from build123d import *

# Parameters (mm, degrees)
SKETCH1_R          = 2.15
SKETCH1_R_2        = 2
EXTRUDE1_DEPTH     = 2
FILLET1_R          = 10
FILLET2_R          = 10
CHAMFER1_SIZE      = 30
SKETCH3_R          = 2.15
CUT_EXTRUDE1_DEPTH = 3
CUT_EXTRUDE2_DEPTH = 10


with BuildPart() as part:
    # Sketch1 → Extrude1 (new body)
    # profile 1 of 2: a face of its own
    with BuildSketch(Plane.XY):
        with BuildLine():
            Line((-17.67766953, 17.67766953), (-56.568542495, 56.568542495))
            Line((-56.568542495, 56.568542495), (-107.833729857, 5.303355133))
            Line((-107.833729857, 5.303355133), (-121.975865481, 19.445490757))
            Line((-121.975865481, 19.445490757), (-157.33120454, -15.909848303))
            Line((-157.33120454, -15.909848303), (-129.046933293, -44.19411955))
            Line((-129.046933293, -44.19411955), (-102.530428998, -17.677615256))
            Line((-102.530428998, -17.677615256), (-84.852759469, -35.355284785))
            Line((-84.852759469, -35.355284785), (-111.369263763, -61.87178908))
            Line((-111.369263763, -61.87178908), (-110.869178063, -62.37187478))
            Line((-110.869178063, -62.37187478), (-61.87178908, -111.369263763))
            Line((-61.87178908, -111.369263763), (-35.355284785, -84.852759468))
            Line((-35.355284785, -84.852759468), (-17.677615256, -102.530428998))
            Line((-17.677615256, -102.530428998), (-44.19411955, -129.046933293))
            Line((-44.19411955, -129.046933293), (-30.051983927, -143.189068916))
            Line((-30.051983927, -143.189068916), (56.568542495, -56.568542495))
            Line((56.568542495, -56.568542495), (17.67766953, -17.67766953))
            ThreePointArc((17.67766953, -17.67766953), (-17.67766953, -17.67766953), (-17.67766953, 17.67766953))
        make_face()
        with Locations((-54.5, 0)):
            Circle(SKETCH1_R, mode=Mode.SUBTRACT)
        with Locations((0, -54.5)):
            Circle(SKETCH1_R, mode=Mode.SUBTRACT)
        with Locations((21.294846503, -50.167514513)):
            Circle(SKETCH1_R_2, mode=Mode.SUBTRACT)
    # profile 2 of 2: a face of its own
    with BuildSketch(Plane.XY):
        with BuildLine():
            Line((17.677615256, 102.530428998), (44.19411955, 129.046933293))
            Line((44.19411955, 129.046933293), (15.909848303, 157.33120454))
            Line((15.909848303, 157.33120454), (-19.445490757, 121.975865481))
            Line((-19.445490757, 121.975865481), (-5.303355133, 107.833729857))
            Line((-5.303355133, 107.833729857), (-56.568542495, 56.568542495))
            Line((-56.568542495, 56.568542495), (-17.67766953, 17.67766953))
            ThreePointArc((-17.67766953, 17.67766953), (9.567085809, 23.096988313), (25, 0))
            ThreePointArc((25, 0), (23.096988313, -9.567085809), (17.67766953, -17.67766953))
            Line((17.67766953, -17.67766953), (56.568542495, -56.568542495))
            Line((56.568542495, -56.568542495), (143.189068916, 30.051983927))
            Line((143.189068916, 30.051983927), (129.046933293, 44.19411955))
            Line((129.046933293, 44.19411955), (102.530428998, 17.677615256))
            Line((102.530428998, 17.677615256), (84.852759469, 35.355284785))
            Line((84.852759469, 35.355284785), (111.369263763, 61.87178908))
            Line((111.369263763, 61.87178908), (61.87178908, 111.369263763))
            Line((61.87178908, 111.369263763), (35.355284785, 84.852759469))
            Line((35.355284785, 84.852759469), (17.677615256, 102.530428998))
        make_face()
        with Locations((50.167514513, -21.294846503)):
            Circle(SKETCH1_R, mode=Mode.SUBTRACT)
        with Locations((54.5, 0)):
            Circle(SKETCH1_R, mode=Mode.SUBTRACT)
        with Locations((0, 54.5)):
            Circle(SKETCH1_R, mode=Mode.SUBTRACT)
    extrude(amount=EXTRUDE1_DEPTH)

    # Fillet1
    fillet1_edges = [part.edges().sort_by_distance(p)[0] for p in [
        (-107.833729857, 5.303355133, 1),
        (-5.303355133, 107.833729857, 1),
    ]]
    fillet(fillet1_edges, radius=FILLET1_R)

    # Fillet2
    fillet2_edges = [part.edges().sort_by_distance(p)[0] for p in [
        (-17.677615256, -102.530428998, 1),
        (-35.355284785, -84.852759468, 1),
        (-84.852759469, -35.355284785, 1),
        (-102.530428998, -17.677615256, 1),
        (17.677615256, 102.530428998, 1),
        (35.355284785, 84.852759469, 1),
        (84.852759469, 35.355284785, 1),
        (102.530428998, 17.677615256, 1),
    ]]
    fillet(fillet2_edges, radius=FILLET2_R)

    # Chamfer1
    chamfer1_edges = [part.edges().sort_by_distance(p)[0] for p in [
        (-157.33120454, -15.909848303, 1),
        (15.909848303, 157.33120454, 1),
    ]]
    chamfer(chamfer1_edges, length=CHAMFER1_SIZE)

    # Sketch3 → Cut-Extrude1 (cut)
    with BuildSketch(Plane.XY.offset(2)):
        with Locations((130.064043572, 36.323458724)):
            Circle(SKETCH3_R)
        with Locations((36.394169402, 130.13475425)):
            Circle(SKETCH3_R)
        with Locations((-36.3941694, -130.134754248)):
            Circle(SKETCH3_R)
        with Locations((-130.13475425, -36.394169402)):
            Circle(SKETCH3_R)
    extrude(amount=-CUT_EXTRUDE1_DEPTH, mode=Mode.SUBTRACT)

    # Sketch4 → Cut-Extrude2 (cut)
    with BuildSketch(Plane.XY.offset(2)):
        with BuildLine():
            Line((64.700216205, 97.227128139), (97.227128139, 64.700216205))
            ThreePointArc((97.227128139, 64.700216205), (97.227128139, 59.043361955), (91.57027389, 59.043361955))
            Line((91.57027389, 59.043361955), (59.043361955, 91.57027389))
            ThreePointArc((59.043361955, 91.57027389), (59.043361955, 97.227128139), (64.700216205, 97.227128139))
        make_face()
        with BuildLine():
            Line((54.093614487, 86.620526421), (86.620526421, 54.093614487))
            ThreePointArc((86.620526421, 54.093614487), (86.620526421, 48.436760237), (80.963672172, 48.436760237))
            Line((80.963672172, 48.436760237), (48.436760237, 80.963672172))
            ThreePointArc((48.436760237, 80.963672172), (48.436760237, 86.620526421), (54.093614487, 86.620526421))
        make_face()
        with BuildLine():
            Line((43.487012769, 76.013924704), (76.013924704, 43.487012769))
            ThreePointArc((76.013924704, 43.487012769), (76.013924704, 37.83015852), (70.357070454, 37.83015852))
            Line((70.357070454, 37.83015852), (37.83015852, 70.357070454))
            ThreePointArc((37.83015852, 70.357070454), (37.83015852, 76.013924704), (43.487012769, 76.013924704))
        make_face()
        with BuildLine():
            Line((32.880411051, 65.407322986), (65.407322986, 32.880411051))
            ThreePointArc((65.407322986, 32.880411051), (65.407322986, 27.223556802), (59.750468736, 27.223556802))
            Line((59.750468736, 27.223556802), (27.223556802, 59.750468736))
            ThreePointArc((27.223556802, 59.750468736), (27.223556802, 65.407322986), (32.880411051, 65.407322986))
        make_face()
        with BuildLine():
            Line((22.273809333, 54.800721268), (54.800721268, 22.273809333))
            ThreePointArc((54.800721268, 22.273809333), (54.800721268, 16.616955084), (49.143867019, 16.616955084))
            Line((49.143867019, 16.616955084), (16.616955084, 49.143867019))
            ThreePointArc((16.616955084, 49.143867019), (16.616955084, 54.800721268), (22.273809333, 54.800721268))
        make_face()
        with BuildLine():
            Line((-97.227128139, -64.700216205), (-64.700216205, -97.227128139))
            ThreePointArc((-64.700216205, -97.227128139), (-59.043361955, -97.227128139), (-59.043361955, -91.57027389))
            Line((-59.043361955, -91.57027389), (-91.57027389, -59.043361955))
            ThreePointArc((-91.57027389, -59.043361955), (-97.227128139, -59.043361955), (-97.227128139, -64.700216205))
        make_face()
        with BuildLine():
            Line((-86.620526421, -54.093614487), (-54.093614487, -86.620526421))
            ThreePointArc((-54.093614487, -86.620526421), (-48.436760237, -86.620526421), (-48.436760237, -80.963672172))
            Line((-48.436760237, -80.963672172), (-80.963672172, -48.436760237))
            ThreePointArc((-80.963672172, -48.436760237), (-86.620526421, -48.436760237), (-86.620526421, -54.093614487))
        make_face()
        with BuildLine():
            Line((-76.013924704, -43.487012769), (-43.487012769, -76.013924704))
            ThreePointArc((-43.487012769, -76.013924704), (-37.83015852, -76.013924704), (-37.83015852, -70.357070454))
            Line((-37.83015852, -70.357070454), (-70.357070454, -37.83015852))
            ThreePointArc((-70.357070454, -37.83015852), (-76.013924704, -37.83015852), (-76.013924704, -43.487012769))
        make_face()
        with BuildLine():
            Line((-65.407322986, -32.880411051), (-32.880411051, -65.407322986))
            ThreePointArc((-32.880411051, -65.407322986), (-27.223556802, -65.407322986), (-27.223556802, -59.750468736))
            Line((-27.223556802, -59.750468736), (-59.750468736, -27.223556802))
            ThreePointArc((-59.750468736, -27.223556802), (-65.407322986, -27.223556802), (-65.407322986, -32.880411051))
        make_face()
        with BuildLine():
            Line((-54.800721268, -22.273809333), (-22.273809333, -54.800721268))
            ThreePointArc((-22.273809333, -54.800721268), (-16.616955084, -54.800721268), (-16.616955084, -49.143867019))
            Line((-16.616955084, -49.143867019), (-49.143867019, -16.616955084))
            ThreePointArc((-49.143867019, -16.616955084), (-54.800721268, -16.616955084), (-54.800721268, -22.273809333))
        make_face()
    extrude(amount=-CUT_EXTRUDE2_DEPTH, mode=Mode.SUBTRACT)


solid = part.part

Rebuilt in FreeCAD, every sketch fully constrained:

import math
import FreeCAD as App
import Part
import Sketcher

V = App.Vector
Q = App.Units.Quantity


def edges_at(feature, points):
    """Names of the edges that pass closest to the given points."""
    edges = feature.Shape.Edges
    near = lambda p: min(range(len(edges)), key=lambda i: edges[i].distToShape(Part.Vertex(*p))[0])
    return sorted({f"Edge{near(p) + 1}" for p in points})


def add_polygon(sketch, points):
    """Adds a closed chain of lines whose ends are joined by coincident constraints."""
    first, n = sketch.GeometryCount, len(points)
    for a, b in zip(points, points[1:] + points[:1]):
        sketch.addGeometry(Part.LineSegment(App.Vector(*a, 0), App.Vector(*b, 0)), False)
    for i in range(n):
        sketch.addConstraint(Sketcher.Constraint("Coincident", first + i, 2, first + (i + 1) % n, 1))

doc = App.newDocument("Part")
body = doc.addObject("PartDesign::Body", "Body")

# Sketch on XY plane
sketch1 = body.newObject("Sketcher::SketchObject", "Sketch")
sketch1.AttachmentSupport = (doc.getObject("XY_Plane"), [""])
sketch1.MapMode = "FlatFace"
add_polygon(sketch1, [(-107.83373, 5.303355), (-121.975865, 19.445491), (-157.331205, -15.909848), (-129.046933, -44.19412), (-102.530429, -17.677615), (-84.852759, -35.355285), (-111.369264, -61.871789), (-61.871789, -111.369264), (-35.355285, -84.852759), (-17.677615, -102.530429), (-44.19412, -129.046933), (-30.051984, -143.189069), (56.568542, -56.568542), (143.189069, 30.051984), (129.046933, 44.19412), (102.530429, 17.677615), (84.852759, 35.355285), (111.369264, 61.871789), (61.871789, 111.369264), (35.355285, 84.852759), (17.677615, 102.530429), (44.19412, 129.046933), (15.909848, 157.331205), (-19.445491, 121.975865), (-5.303355, 107.83373)])  # lines 0-24
sketch1.addGeometry(Part.ArcOfCircle(Part.Circle(V(0, 0, 0), V(0, 0, 1), 25), math.radians(135), math.radians(315)), False)  # 25
sketch1.addGeometry(Part.ArcOfCircle(Part.Circle(V(0, 0, 0), V(0, 0, 1), 25), math.radians(0), math.radians(135)), False)  # 26
sketch1.addGeometry(Part.ArcOfCircle(Part.Circle(V(0, 0, 0), V(0, 0, 1), 25), math.radians(-45), math.radians(0)), False)  # 27
sketch1.addGeometry(Part.Circle(V(0, -54.5, 0), V(0, 0, 1), 2.15), False)  # 28
sketch1.addGeometry(Part.Circle(V(21.294847, -50.167515, 0), V(0, 0, 1), 2), False)  # 29
sketch1.addGeometry(Part.Circle(V(-54.5, 0, 0), V(0, 0, 1), 2.15), False)  # 30
sketch1.addGeometry(Part.Circle(V(0, 54.5, 0), V(0, 0, 1), 2.15), False)  # 31
sketch1.addGeometry(Part.Circle(V(54.5, 0, 0), V(0, 0, 1), 2.15), False)  # 32
sketch1.addGeometry(Part.Circle(V(50.167515, -21.294847, 0), V(0, 0, 1), 2.15), False)  # 33
sketch1.addConstraint(Sketcher.Constraint("Tangent", 25, 1, 26, 2))
sketch1.addConstraint(Sketcher.Constraint("Tangent", 26, 1, 27, 2))
sketch1.addConstraint(Sketcher.Constraint("Tangent", 27, 1, 25, 2))
sketch1.addConstraint(Sketcher.Constraint("Coincident", 25, 3, -1, 1))
sketch1.addConstraint(Sketcher.Constraint("Equal", 28, 30))
sketch1.addConstraint(Sketcher.Constraint("Equal", 30, 31))
sketch1.addConstraint(Sketcher.Constraint("Equal", 31, 32))
sketch1.addConstraint(Sketcher.Constraint("Equal", 32, 33))
sketch1.addConstraint(Sketcher.Constraint("Symmetric", 28, 3, 31, 3, -1, 1))
sketch1.addConstraint(Sketcher.Constraint("Symmetric", 30, 3, 32, 3, -1, 1))
sketch1.addConstraint(Sketcher.Constraint("Symmetric", 2, 2, 13, 2, -1, 1))
sketch1.addConstraint(Sketcher.Constraint("Symmetric", 3, 2, 14, 2, -1, 1))
sketch1.addConstraint(Sketcher.Constraint("Symmetric", 4, 2, 15, 2, -1, 1))
sketch1.addConstraint(Sketcher.Constraint("Symmetric", 5, 2, 16, 2, -1, 1))
sketch1.addConstraint(Sketcher.Constraint("Symmetric", 6, 2, 17, 2, -1, 1))
sketch1.addConstraint(Sketcher.Constraint("Symmetric", 7, 2, 18, 2, -1, 1))
sketch1.addConstraint(Sketcher.Constraint("Symmetric", 8, 2, 19, 2, -1, 1))
sketch1.addConstraint(Sketcher.Constraint("Symmetric", 9, 2, 20, 2, -1, 1))
sketch1.addConstraint(Sketcher.Constraint("PointOnObject", 28, 3, -2))
sketch1.addConstraint(Sketcher.Constraint("PointOnObject", 30, 3, -1))
sketch1.addConstraint(Sketcher.Constraint("PointOnObject", 26, 1, -1))
sketch1.addConstraint(Sketcher.Constraint("Perpendicular", 0, 1))
sketch1.addConstraint(Sketcher.Constraint("Perpendicular", 1, 2))
sketch1.addConstraint(Sketcher.Constraint("Perpendicular", 2, 3))
sketch1.addConstraint(Sketcher.Constraint("Perpendicular", 3, 4))
sketch1.addConstraint(Sketcher.Constraint("Perpendicular", 4, 5))
sketch1.addConstraint(Sketcher.Constraint("Perpendicular", 5, 6))
sketch1.addConstraint(Sketcher.Constraint("Perpendicular", 6, 7))
sketch1.addConstraint(Sketcher.Constraint("Perpendicular", 7, 8))
sketch1.addConstraint(Sketcher.Constraint("Perpendicular", 8, 9))
sketch1.addConstraint(Sketcher.Constraint("Perpendicular", 9, 10))
sketch1.addConstraint(Sketcher.Constraint("Perpendicular", 10, 11))
sketch1.addConstraint(Sketcher.Constraint("Parallel", 11, 12))
sketch1.addConstraint(Sketcher.Constraint("Perpendicular", 12, 13))
sketch1.addConstraint(Sketcher.Constraint("Perpendicular", 20, 21))
sketch1.addConstraint(Sketcher.Constraint("Perpendicular", 21, 22))
sketch1.addConstraint(Sketcher.Constraint("Perpendicular", 22, 23))
sketch1.addConstraint(Sketcher.Constraint("Perpendicular", 23, 24))
sketch1.addConstraint(Sketcher.Constraint("Equal", 3, 5))
sketch1.addConstraint(Sketcher.Constraint("Equal", 5, 7))
sketch1.addConstraint(Sketcher.Constraint("Equal", 4, 8))
sketch1.addConstraint(Sketcher.Constraint("Equal", 7, 9))
sketch1.addConstraint(Sketcher.Constraint("Equal", 0, 10))
sketch1.addConstraint(Sketcher.Constraint("Equal", 11, 12))
sketch1.addConstraint(Sketcher.Constraint("Equal", 10, 13))
sketch1.addConstraint(Sketcher.Constraint("Equal", 2, 21))
sketch1.addConstraint(Sketcher.Constraint("Equal", 1, 22))
sketch1.addConstraint(Sketcher.Constraint("Diameter", 29, 4.0))
sketch1.addConstraint(Sketcher.Constraint("Radius", 25, 25.0))
sketch1.addConstraint(Sketcher.Constraint("Diameter", 28, 4.3))
sketch1.addConstraint(Sketcher.Constraint("Angle", 0, Q("135 deg")))
sketch1.addConstraint(Sketcher.Constraint("Distance", 0, 20.0))
sketch1.addConstraint(Sketcher.Constraint("Distance", 1, 50.0))
sketch1.addConstraint(Sketcher.Constraint("Distance", 2, 40.0))
sketch1.addConstraint(Sketcher.Constraint("Distance", 4, 25.0))
sketch1.addConstraint(Sketcher.Constraint("Distance", 6, 70.0))
sketch1.addConstraint(Sketcher.Constraint("Distance", 3, 37.5))
sketch1.addConstraint(Sketcher.Constraint("DistanceY", 28, 3, -1, 1, 54.5))
sketch1.addConstraint(Sketcher.Constraint("DistanceX", 30, 3, -1, 1, 54.5))
sketch1.addConstraint(Sketcher.Constraint("DistanceY", 29, 3, 12, 2, 80.219498))
sketch1.addConstraint(Sketcher.Constraint("DistanceY", -1, 1, 0, 2, 19.445491))
sketch1.addConstraint(Sketcher.Constraint("DistanceX", 25, 1, -1, 1, 17.67767))
sketch1.addConstraint(Sketcher.Constraint("DistanceX", -1, 1, 27, 1, 17.67767))
sketch1.addConstraint(Sketcher.Constraint("DistanceX", 29, 3, 33, 3, 28.872668))
sketch1.addConstraint(Sketcher.Constraint("DistanceY", 29, 3, 33, 3, 28.872668))
sketch1.addConstraint(Sketcher.Constraint("DistanceX", 7, 2, 29, 3, 56.650131))
pad1 = body.newObject("PartDesign::Pad", "Pad")
pad1.Profile = sketch1
pad1.Length = 2
doc.recompute()

fillet = body.newObject("PartDesign::Fillet", "Fillet")
fillet.Base = (pad1, edges_at(pad1, [(-107.834, 5.303, 1), (-5.303, 107.834, 1)]))
fillet.Radius = 10
doc.recompute()

fillet2 = body.newObject("PartDesign::Fillet", "Fillet001")
fillet2.Base = (fillet, edges_at(fillet, [
    (-17.678, -102.53, 1),
    (-35.355, -84.853, 1),
    (-84.853, -35.355, 1),
    (-102.53, -17.678, 1),
    (17.678, 102.53, 1),
    (35.355, 84.853, 1),
    (84.853, 35.355, 1),
    (102.53, 17.678, 1),
]))
fillet2.Radius = 10
doc.recompute()

chamfer = body.newObject("PartDesign::Chamfer", "Chamfer")
chamfer.Base = (fillet2, edges_at(fillet2, [(-157.331, -15.91, 1), (15.91, 157.331, 1)]))
chamfer.Size = 30

# Sketch on XY plane
sketch2 = body.newObject("Sketcher::SketchObject", "Sketch001")
sketch2.AttachmentSupport = (doc.getObject("XY_Plane"), [""])
sketch2.MapMode = "FlatFace"
sketch2.AttachmentOffset = App.Placement(V(0, 0, 2), App.Rotation())
sketch2.addGeometry(Part.Circle(V(130.064044, 36.323459, 0), V(0, 0, 1), 2.15), False)
sketch2.addGeometry(Part.Circle(V(36.394169, 130.134754, 0), V(0, 0, 1), 2.15), False)
sketch2.addGeometry(Part.Circle(V(-36.394169, -130.134754, 0), V(0, 0, 1), 2.15), False)
sketch2.addGeometry(Part.Circle(V(-130.134754, -36.394169, 0), V(0, 0, 1), 2.15), False)
sketch2.addConstraint(Sketcher.Constraint("Equal", 0, 1))
sketch2.addConstraint(Sketcher.Constraint("Equal", 1, 2))
sketch2.addConstraint(Sketcher.Constraint("Equal", 2, 3))
sketch2.addConstraint(Sketcher.Constraint("Symmetric", 1, 3, 2, 3, -1, 1))
sketch2.addConstraint(Sketcher.Constraint("Diameter", 0, 4.3))
sketch2.addConstraint(Sketcher.Constraint("DistanceY", -1, 1, 0, 3, 36.323459))
sketch2.addConstraint(Sketcher.Constraint("DistanceX", -1, 1, 1, 3, 36.394169))
sketch2.addConstraint(Sketcher.Constraint("DistanceY", 3, 3, -1, 1, 36.394169))
sketch2.addConstraint(Sketcher.Constraint("DistanceY", 2, 3, 1, 3, 260.269508))
sketch2.addConstraint(Sketcher.Constraint("DistanceX", -1, 1, 0, 3, 130.064044))
sketch2.addConstraint(Sketcher.Constraint("DistanceX", 3, 3, -1, 1, 130.134754))
pocket1 = body.newObject("PartDesign::Pocket", "Pocket")
pocket1.Profile = sketch2
pocket1.Length = 3

# Sketch on XY plane
sketch3 = body.newObject("Sketcher::SketchObject", "Sketch002")
sketch3.AttachmentSupport = (doc.getObject("XY_Plane"), [""])
sketch3.MapMode = "FlatFace"
sketch3.AttachmentOffset = App.Placement(V(0, 0, 2), App.Rotation())
sketch3.addGeometry(Part.LineSegment(V(97.227128, 64.700216, 0), V(64.700216, 97.227128, 0)), False)
sketch3.addGeometry(Part.ArcOfCircle(Part.Circle(V(61.871789, 94.398701, 0), V(0, 0, 1), 4), math.radians(45), math.radians(225)), False)
sketch3.addGeometry(Part.LineSegment(V(59.043362, 91.570274, 0), V(91.570274, 59.043362, 0)), False)
sketch3.addGeometry(Part.ArcOfCircle(Part.Circle(V(94.398701, 61.871789, 0), V(0, 0, 1), 4), math.radians(-135), math.radians(45)), False)
sketch3.addGeometry(Part.LineSegment(V(86.620526, 54.093614, 0), V(54.093614, 86.620526, 0)), False)
sketch3.addGeometry(Part.ArcOfCircle(Part.Circle(V(51.265187, 83.792099, 0), V(0, 0, 1), 4), math.radians(45), math.radians(225)), False)
sketch3.addGeometry(Part.LineSegment(V(48.43676, 80.963672, 0), V(80.963672, 48.43676, 0)), False)
sketch3.addGeometry(Part.ArcOfCircle(Part.Circle(V(83.792099, 51.265187, 0), V(0, 0, 1), 4), math.radians(-135), math.radians(45)), False)
sketch3.addGeometry(Part.LineSegment(V(76.013925, 43.487013, 0), V(43.487013, 76.013925, 0)), False)
sketch3.addGeometry(Part.ArcOfCircle(Part.Circle(V(40.658586, 73.185498, 0), V(0, 0, 1), 4), math.radians(45), math.radians(225)), False)
sketch3.addGeometry(Part.LineSegment(V(37.830159, 70.35707, 0), V(70.35707, 37.830159, 0)), False)
sketch3.addGeometry(Part.ArcOfCircle(Part.Circle(V(73.185498, 40.658586, 0), V(0, 0, 1), 4), math.radians(-135), math.radians(45)), False)
sketch3.addGeometry(Part.LineSegment(V(65.407323, 32.880411, 0), V(32.880411, 65.407323, 0)), False)
sketch3.addGeometry(Part.ArcOfCircle(Part.Circle(V(30.051984, 62.578896, 0), V(0, 0, 1), 4), math.radians(45), math.radians(225)), False)
sketch3.addGeometry(Part.LineSegment(V(27.223557, 59.750469, 0), V(59.750469, 27.223557, 0)), False)
sketch3.addGeometry(Part.ArcOfCircle(Part.Circle(V(62.578896, 30.051984, 0), V(0, 0, 1), 4), math.radians(-135), math.radians(45)), False)
sketch3.addGeometry(Part.LineSegment(V(54.800721, 22.273809, 0), V(22.273809, 54.800721, 0)), False)
sketch3.addGeometry(Part.ArcOfCircle(Part.Circle(V(19.445382, 51.972294, 0), V(0, 0, 1), 4), math.radians(45), math.radians(225)), False)
sketch3.addGeometry(Part.LineSegment(V(16.616955, 49.143867, 0), V(49.143867, 16.616955, 0)), False)
sketch3.addGeometry(Part.ArcOfCircle(Part.Circle(V(51.972294, 19.445382, 0), V(0, 0, 1), 4), math.radians(-135), math.radians(45)), False)
sketch3.addGeometry(Part.LineSegment(V(-97.227128, -64.700216, 0), V(-64.700216, -97.227128, 0)), False)
sketch3.addGeometry(Part.ArcOfCircle(Part.Circle(V(-61.871789, -94.398701, 0), V(0, 0, 1), 4), math.radians(-135), math.radians(45)), False)
sketch3.addGeometry(Part.LineSegment(V(-59.043362, -91.570274, 0), V(-91.570274, -59.043362, 0)), False)
sketch3.addGeometry(Part.ArcOfCircle(Part.Circle(V(-94.398701, -61.871789, 0), V(0, 0, 1), 4), math.radians(45), math.radians(225)), False)
sketch3.addGeometry(Part.LineSegment(V(-86.620526, -54.093614, 0), V(-54.093614, -86.620526, 0)), False)
sketch3.addGeometry(Part.ArcOfCircle(Part.Circle(V(-51.265187, -83.792099, 0), V(0, 0, 1), 4), math.radians(-135), math.radians(45)), False)
sketch3.addGeometry(Part.LineSegment(V(-48.43676, -80.963672, 0), V(-80.963672, -48.43676, 0)), False)
sketch3.addGeometry(Part.ArcOfCircle(Part.Circle(V(-83.792099, -51.265187, 0), V(0, 0, 1), 4), math.radians(45), math.radians(225)), False)
sketch3.addGeometry(Part.LineSegment(V(-76.013925, -43.487013, 0), V(-43.487013, -76.013925, 0)), False)
sketch3.addGeometry(Part.ArcOfCircle(Part.Circle(V(-40.658586, -73.185498, 0), V(0, 0, 1), 4), math.radians(-135), math.radians(45)), False)
sketch3.addGeometry(Part.LineSegment(V(-37.830159, -70.35707, 0), V(-70.35707, -37.830159, 0)), False)
sketch3.addGeometry(Part.ArcOfCircle(Part.Circle(V(-73.185498, -40.658586, 0), V(0, 0, 1), 4), math.radians(45), math.radians(225)), False)
sketch3.addGeometry(Part.LineSegment(V(-65.407323, -32.880411, 0), V(-32.880411, -65.407323, 0)), False)
sketch3.addGeometry(Part.ArcOfCircle(Part.Circle(V(-30.051984, -62.578896, 0), V(0, 0, 1), 4), math.radians(-135), math.radians(45)), False)
sketch3.addGeometry(Part.LineSegment(V(-27.223557, -59.750469, 0), V(-59.750469, -27.223557, 0)), False)
sketch3.addGeometry(Part.ArcOfCircle(Part.Circle(V(-62.578896, -30.051984, 0), V(0, 0, 1), 4), math.radians(45), math.radians(225)), False)
sketch3.addGeometry(Part.LineSegment(V(-54.800721, -22.273809, 0), V(-22.273809, -54.800721, 0)), False)
sketch3.addGeometry(Part.ArcOfCircle(Part.Circle(V(-19.445382, -51.972294, 0), V(0, 0, 1), 4), math.radians(-135), math.radians(45)), False)
sketch3.addGeometry(Part.LineSegment(V(-16.616955, -49.143867, 0), V(-49.143867, -16.616955, 0)), False)
sketch3.addGeometry(Part.ArcOfCircle(Part.Circle(V(-51.972294, -19.445382, 0), V(0, 0, 1), 4), math.radians(45), math.radians(225)), False)
sketch3.addConstraint(Sketcher.Constraint("Tangent", 0, 2, 1, 1))
sketch3.addConstraint(Sketcher.Constraint("Tangent", 1, 2, 2, 1))
sketch3.addConstraint(Sketcher.Constraint("Tangent", 2, 2, 3, 1))
sketch3.addConstraint(Sketcher.Constraint("Tangent", 3, 2, 0, 1))
sketch3.addConstraint(Sketcher.Constraint("Tangent", 4, 2, 5, 1))
sketch3.addConstraint(Sketcher.Constraint("Tangent", 5, 2, 6, 1))
sketch3.addConstraint(Sketcher.Constraint("Tangent", 6, 2, 7, 1))
sketch3.addConstraint(Sketcher.Constraint("Tangent", 7, 2, 4, 1))
sketch3.addConstraint(Sketcher.Constraint("Tangent", 8, 2, 9, 1))
sketch3.addConstraint(Sketcher.Constraint("Tangent", 9, 2, 10, 1))
sketch3.addConstraint(Sketcher.Constraint("Tangent", 10, 2, 11, 1))
sketch3.addConstraint(Sketcher.Constraint("Tangent", 11, 2, 8, 1))
sketch3.addConstraint(Sketcher.Constraint("Tangent", 12, 2, 13, 1))
sketch3.addConstraint(Sketcher.Constraint("Tangent", 13, 2, 14, 1))
sketch3.addConstraint(Sketcher.Constraint("Tangent", 14, 2, 15, 1))
sketch3.addConstraint(Sketcher.Constraint("Tangent", 15, 2, 12, 1))
sketch3.addConstraint(Sketcher.Constraint("Tangent", 16, 2, 17, 1))
sketch3.addConstraint(Sketcher.Constraint("Tangent", 17, 2, 18, 1))
sketch3.addConstraint(Sketcher.Constraint("Tangent", 18, 2, 19, 1))
sketch3.addConstraint(Sketcher.Constraint("Tangent", 19, 2, 16, 1))
sketch3.addConstraint(Sketcher.Constraint("Tangent", 20, 2, 21, 1))
sketch3.addConstraint(Sketcher.Constraint("Tangent", 21, 2, 22, 1))
sketch3.addConstraint(Sketcher.Constraint("Tangent", 22, 2, 23, 1))
sketch3.addConstraint(Sketcher.Constraint("Tangent", 23, 2, 20, 1))
sketch3.addConstraint(Sketcher.Constraint("Tangent", 24, 2, 25, 1))
sketch3.addConstraint(Sketcher.Constraint("Tangent", 25, 2, 26, 1))
sketch3.addConstraint(Sketcher.Constraint("Tangent", 26, 2, 27, 1))
sketch3.addConstraint(Sketcher.Constraint("Tangent", 27, 2, 24, 1))
sketch3.addConstraint(Sketcher.Constraint("Tangent", 28, 2, 29, 1))
sketch3.addConstraint(Sketcher.Constraint("Tangent", 29, 2, 30, 1))
sketch3.addConstraint(Sketcher.Constraint("Tangent", 30, 2, 31, 1))
sketch3.addConstraint(Sketcher.Constraint("Tangent", 31, 2, 28, 1))
sketch3.addConstraint(Sketcher.Constraint("Tangent", 32, 2, 33, 1))
sketch3.addConstraint(Sketcher.Constraint("Tangent", 33, 2, 34, 1))
sketch3.addConstraint(Sketcher.Constraint("Tangent", 34, 2, 35, 1))
sketch3.addConstraint(Sketcher.Constraint("Tangent", 35, 2, 32, 1))
sketch3.addConstraint(Sketcher.Constraint("Tangent", 36, 2, 37, 1))
sketch3.addConstraint(Sketcher.Constraint("Tangent", 37, 2, 38, 1))
sketch3.addConstraint(Sketcher.Constraint("Tangent", 38, 2, 39, 1))
sketch3.addConstraint(Sketcher.Constraint("Tangent", 39, 2, 36, 1))
sketch3.addConstraint(Sketcher.Constraint("Equal", 1, 3))
sketch3.addConstraint(Sketcher.Constraint("Equal", 3, 5))
sketch3.addConstraint(Sketcher.Constraint("Equal", 5, 7))
sketch3.addConstraint(Sketcher.Constraint("Equal", 7, 9))
sketch3.addConstraint(Sketcher.Constraint("Equal", 9, 11))
sketch3.addConstraint(Sketcher.Constraint("Equal", 11, 13))
sketch3.addConstraint(Sketcher.Constraint("Equal", 13, 15))
sketch3.addConstraint(Sketcher.Constraint("Equal", 15, 17))
sketch3.addConstraint(Sketcher.Constraint("Equal", 17, 19))
sketch3.addConstraint(Sketcher.Constraint("Equal", 19, 21))
sketch3.addConstraint(Sketcher.Constraint("Equal", 21, 23))
sketch3.addConstraint(Sketcher.Constraint("Equal", 23, 25))
sketch3.addConstraint(Sketcher.Constraint("Equal", 25, 27))
sketch3.addConstraint(Sketcher.Constraint("Equal", 27, 29))
sketch3.addConstraint(Sketcher.Constraint("Equal", 29, 31))
sketch3.addConstraint(Sketcher.Constraint("Equal", 31, 33))
sketch3.addConstraint(Sketcher.Constraint("Equal", 33, 35))
sketch3.addConstraint(Sketcher.Constraint("Equal", 35, 37))
sketch3.addConstraint(Sketcher.Constraint("Equal", 37, 39))
sketch3.addConstraint(Sketcher.Constraint("Symmetric", 1, 3, 21, 3, -1, 1))
sketch3.addConstraint(Sketcher.Constraint("Symmetric", 3, 3, 23, 3, -1, 1))
sketch3.addConstraint(Sketcher.Constraint("Symmetric", 5, 3, 25, 3, -1, 1))
sketch3.addConstraint(Sketcher.Constraint("Symmetric", 7, 3, 27, 3, -1, 1))
sketch3.addConstraint(Sketcher.Constraint("Symmetric", 9, 3, 29, 3, -1, 1))
sketch3.addConstraint(Sketcher.Constraint("Symmetric", 11, 3, 31, 3, -1, 1))
sketch3.addConstraint(Sketcher.Constraint("Symmetric", 13, 3, 33, 3, -1, 1))
sketch3.addConstraint(Sketcher.Constraint("Symmetric", 15, 3, 35, 3, -1, 1))
sketch3.addConstraint(Sketcher.Constraint("Symmetric", 17, 3, 37, 3, -1, 1))
sketch3.addConstraint(Sketcher.Constraint("Symmetric", 19, 3, 39, 3, -1, 1))
sketch3.addConstraint(Sketcher.Constraint("Parallel", 2, 4))
sketch3.addConstraint(Sketcher.Constraint("Parallel", 6, 8))
sketch3.addConstraint(Sketcher.Constraint("Parallel", 10, 12))
sketch3.addConstraint(Sketcher.Constraint("Parallel", 14, 16))
sketch3.addConstraint(Sketcher.Constraint("Equal", 2, 4))
sketch3.addConstraint(Sketcher.Constraint("Equal", 6, 8))
sketch3.addConstraint(Sketcher.Constraint("Equal", 10, 12))
sketch3.addConstraint(Sketcher.Constraint("Equal", 14, 16))
sketch3.addConstraint(Sketcher.Constraint("Radius", 1, 4.0))
sketch3.addConstraint(Sketcher.Constraint("Angle", 0, Q("135 deg")))
sketch3.addConstraint(Sketcher.Constraint("Distance", 0, 46.0))
sketch3.addConstraint(Sketcher.Constraint("DistanceY", -1, 1, 1, 3, 94.398701))
sketch3.addConstraint(Sketcher.Constraint("DistanceX", -1, 1, 3, 3, 94.398701))
sketch3.addConstraint(Sketcher.Constraint("DistanceY", -1, 1, 5, 3, 83.792099))
sketch3.addConstraint(Sketcher.Constraint("DistanceX", -1, 1, 7, 3, 83.792099))
sketch3.addConstraint(Sketcher.Constraint("DistanceX", 9, 3, 5, 3, 10.606602))
sketch3.addConstraint(Sketcher.Constraint("DistanceY", 9, 3, 5, 3, 10.606602))
sketch3.addConstraint(Sketcher.Constraint("DistanceX", 13, 3, 9, 3, 10.606602))
sketch3.addConstraint(Sketcher.Constraint("DistanceY", 13, 3, 9, 3, 10.606602))
sketch3.addConstraint(Sketcher.Constraint("DistanceX", 17, 3, 13, 3, 10.606602))
sketch3.addConstraint(Sketcher.Constraint("DistanceY", 17, 3, 13, 3, 10.606602))
pocket2 = body.newObject("PartDesign::Pocket", "Pocket001")
pocket2.Profile = sketch3
pocket2.Length = 10

doc.recompute()
